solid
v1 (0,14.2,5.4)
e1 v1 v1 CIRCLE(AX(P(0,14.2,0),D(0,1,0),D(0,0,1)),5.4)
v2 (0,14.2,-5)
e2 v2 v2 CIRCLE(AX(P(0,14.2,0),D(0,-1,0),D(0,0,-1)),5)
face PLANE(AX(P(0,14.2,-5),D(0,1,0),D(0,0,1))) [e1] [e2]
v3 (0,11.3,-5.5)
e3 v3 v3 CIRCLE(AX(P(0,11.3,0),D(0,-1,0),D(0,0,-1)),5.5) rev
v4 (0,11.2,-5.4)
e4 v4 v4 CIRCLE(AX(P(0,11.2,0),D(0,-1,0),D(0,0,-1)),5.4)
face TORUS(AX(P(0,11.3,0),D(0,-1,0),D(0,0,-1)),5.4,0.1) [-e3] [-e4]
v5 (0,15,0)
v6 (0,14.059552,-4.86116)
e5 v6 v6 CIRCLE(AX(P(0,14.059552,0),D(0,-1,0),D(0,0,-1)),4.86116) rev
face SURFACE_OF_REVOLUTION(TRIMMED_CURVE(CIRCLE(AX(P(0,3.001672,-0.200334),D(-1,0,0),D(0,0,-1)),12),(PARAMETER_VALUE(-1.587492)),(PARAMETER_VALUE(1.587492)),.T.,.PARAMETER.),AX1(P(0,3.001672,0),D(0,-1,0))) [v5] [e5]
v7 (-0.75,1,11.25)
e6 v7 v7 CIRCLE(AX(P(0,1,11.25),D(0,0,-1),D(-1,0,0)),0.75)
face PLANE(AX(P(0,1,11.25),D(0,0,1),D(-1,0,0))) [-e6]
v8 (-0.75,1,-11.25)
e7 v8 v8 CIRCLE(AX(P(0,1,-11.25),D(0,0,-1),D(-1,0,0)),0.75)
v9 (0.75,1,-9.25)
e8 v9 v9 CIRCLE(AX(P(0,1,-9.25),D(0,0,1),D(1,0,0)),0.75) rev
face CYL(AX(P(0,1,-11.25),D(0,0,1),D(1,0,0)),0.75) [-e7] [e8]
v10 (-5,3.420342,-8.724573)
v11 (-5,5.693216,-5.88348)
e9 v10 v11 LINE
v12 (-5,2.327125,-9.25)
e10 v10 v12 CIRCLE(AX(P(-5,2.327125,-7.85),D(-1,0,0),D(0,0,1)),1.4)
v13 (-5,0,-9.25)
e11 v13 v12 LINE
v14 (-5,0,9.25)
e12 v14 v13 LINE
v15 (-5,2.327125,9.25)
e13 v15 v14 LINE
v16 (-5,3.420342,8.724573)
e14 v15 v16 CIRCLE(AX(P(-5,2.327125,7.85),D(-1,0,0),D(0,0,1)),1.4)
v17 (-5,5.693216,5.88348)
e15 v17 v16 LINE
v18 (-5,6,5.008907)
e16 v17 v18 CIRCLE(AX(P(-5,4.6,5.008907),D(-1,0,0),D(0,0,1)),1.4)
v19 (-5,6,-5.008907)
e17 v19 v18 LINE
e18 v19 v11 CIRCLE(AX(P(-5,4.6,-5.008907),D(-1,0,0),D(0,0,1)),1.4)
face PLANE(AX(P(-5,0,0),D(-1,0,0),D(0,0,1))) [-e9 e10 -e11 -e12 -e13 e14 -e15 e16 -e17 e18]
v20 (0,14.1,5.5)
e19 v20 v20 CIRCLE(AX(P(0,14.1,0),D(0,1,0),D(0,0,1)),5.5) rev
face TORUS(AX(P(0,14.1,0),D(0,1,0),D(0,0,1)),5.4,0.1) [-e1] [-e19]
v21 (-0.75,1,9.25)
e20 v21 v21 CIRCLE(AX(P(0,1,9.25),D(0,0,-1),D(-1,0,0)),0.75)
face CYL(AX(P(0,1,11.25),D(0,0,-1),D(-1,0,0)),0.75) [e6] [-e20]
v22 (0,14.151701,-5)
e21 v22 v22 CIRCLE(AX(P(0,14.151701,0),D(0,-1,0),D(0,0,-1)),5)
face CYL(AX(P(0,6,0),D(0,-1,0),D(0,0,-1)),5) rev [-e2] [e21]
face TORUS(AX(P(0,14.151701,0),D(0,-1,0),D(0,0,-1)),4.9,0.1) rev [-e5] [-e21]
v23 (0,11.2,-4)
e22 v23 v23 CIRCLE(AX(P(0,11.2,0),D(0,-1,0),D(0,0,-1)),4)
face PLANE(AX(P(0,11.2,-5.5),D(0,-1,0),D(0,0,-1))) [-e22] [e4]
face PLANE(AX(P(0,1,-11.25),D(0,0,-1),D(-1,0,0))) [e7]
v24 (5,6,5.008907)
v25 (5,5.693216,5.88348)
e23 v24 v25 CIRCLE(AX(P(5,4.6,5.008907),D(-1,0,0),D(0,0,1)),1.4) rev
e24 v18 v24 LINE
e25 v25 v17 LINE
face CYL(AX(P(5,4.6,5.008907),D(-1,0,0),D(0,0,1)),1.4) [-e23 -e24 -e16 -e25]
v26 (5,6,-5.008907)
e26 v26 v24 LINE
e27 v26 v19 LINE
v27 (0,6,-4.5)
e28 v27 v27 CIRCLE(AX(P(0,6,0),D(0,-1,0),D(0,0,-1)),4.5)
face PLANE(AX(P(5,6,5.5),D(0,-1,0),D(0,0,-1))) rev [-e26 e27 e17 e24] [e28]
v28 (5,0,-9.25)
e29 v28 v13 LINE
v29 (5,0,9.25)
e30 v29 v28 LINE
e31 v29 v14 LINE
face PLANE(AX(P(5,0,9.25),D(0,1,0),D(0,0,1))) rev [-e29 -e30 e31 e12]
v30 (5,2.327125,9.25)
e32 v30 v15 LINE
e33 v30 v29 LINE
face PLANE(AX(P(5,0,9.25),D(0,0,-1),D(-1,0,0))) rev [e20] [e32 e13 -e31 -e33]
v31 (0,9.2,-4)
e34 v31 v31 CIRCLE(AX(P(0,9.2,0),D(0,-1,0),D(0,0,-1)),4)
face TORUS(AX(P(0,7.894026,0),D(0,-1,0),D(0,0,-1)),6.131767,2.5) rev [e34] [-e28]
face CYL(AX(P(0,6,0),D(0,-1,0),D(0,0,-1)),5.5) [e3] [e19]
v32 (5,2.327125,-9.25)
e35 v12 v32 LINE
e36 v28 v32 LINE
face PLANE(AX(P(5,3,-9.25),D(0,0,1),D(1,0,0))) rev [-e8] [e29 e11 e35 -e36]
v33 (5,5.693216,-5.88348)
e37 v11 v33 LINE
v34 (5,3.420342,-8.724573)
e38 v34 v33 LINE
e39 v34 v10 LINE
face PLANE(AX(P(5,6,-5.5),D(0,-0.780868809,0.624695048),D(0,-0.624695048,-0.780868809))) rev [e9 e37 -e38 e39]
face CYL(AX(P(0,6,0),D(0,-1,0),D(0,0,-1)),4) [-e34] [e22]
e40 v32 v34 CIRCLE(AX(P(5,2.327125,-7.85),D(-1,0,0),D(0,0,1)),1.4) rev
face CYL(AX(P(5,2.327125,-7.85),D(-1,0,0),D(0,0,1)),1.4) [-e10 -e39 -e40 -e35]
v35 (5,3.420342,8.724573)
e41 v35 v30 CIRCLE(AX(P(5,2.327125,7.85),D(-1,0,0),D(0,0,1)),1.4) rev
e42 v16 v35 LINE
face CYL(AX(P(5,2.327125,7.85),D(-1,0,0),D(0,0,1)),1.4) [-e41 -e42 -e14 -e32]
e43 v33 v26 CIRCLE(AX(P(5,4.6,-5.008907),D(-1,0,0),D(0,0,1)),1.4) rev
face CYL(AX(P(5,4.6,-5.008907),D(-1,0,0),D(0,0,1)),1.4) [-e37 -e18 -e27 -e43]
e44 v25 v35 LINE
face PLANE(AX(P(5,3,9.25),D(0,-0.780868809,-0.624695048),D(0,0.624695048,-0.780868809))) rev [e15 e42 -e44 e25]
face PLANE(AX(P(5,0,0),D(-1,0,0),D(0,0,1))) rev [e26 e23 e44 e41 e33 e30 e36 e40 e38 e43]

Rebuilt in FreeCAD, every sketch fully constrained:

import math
import FreeCAD as App
import Part
import Sketcher
from FreeCAD import Vector
Q = App.Units.Quantity


def edges_at(feature, points):
    """Names of the edges that pass closest to the given points."""
    edges = feature.Shape.Edges
    near = lambda p: min(range(len(edges)), key=lambda i: edges[i].distToShape(Part.Vertex(*p))[0])
    return sorted({f"Edge{near(p) + 1}" for p in points})

doc = App.newDocument("Part")
body = doc.addObject("PartDesign::Body", "Body")

# Sketch on YZ plane
sketch1 = doc.addObject("Sketcher::SketchObject", "Sketch")
body.addObject(sketch1)
sketch1.AttachmentSupport = (doc.YZ_Plane, [""])
sketch1.MapMode = "FlatFace"
sketch1.addGeometry(Part.LineSegment(Vector(0, 9.2, 0), Vector(0, -9.2, 0)), False)
sketch1.addGeometry(Part.LineSegment(Vector(0, -9.2, 0), Vector(3, -9.2, 0)), False)
sketch1.addGeometry(Part.LineSegment(Vector(3, -9.2, 0), Vector(6, -5.5, 0)), False)
sketch1.addGeometry(Part.LineSegment(Vector(6, -5.5, 0), Vector(6, 5.5, 0)), False)
sketch1.addGeometry(Part.LineSegment(Vector(6, 5.5, 0), Vector(3, 9.2, 0)), False)
sketch1.addGeometry(Part.LineSegment(Vector(3, 9.2, 0), Vector(0, 9.2, 0)), False)
sketch1.addConstraint(Sketcher.Constraint("Coincident", 0, 2, 1, 1))
sketch1.addConstraint(Sketcher.Constraint("Coincident", 1, 2, 2, 1))
sketch1.addConstraint(Sketcher.Constraint("Coincident", 2, 2, 3, 1))
sketch1.addConstraint(Sketcher.Constraint("Coincident", 3, 2, 4, 1))
sketch1.addConstraint(Sketcher.Constraint("Coincident", 4, 2, 5, 1))
sketch1.addConstraint(Sketcher.Constraint("Coincident", 5, 2, 0, 1))
sketch1.addConstraint(Sketcher.Constraint("Vertical", 0))
sketch1.addConstraint(Sketcher.Constraint("Horizontal", 1))
sketch1.addConstraint(Sketcher.Constraint("Vertical", 3))
sketch1.addConstraint(Sketcher.Constraint("Horizontal", 5))
sketch1.addConstraint(Sketcher.Constraint("Symmetric", 0, 2, 5, 2, -1, 1))
sketch1.addConstraint(Sketcher.Constraint("Vertical", 1, 2, 4, 2))
sketch1.addConstraint(Sketcher.Constraint("Equal", 2, 4))
sketch1.addConstraint(Sketcher.Constraint("DistanceX", 1, 1, 1, 2, Q("3 mm")))
sketch1.addConstraint(Sketcher.Constraint("DistanceY", 3, 1, 3, 2, Q("11 mm")))
sketch1.addConstraint(Sketcher.Constraint("DistanceY", 0, 2, 0, 1, Q("18.5 mm")))
sketch1.addConstraint(Sketcher.Constraint("DistanceX", -1, 1, 2, 2, Q("6 mm")))
pad1 = doc.addObject("PartDesign::Pad", "Pad")
body.addObject(pad1)
pad1.Profile = sketch1
pad1.Length = 10
pad1.Midplane = True

# Sketch on YZ plane
sketch2 = doc.addObject("Sketcher::SketchObject", "Sketch001")
body.addObject(sketch2)
sketch2.AttachmentSupport = (doc.YZ_Plane, [""])
sketch2.MapMode = "FlatFace"
sketch2.addGeometry(Part.LineSegment(Vector(14, 0, 0), Vector(6, 0, 0)), False)
sketch2.addGeometry(Part.LineSegment(Vector(6, 0, 0), Vector(6, -4.5, 0)), False)
sketch2.addGeometry(Part.ArcOfCircle(Part.Circle(Vector(7.89, -6.13, 0), Vector(0, 0, 1), 2.5), math.radians(59), math.radians(139)), False)
sketch2.addGeometry(Part.LineSegment(Vector(9.2, -4, 0), Vector(11.2, -4, 0)), False)
sketch2.addGeometry(Part.LineSegment(Vector(11.2, -4, 0), Vector(11.2, -5.5, 0)), False)
sketch2.addGeometry(Part.LineSegment(Vector(11.2, -5.5, 0), Vector(14.2, -5.5, 0)), False)
sketch2.addGeometry(Part.LineSegment(Vector(14.2, -5.5, 0), Vector(14.2, -5, 0)), False)
sketch2.addGeometry(Part.LineSegment(Vector(14.2, -5, 0), Vector(14, -5, 0)), False)
sketch2.addGeometry(Part.LineSegment(Vector(14, -5, 0), Vector(14, 0, 0)), False)
sketch2.addConstraint(Sketcher.Constraint("Coincident", 0, 2, 1, 1))
sketch2.addConstraint(Sketcher.Constraint("Coincident", 1, 2, 2, 2))
sketch2.addConstraint(Sketcher.Constraint("Coincident", 2, 1, 3, 1))
sketch2.addConstraint(Sketcher.Constraint("Coincident", 3, 2, 4, 1))
sketch2.addConstraint(Sketcher.Constraint("Coincident", 4, 2, 5, 1))
sketch2.addConstraint(Sketcher.Constraint("Coincident", 5, 2, 6, 1))
sketch2.addConstraint(Sketcher.Constraint("Coincident", 6, 2, 7, 1))
sketch2.addConstraint(Sketcher.Constraint("Coincident", 7, 2, 8, 1))
sketch2.addConstraint(Sketcher.Constraint("Coincident", 8, 2, 0, 1))
sketch2.addConstraint(Sketcher.Constraint("Horizontal", 0))
sketch2.addConstraint(Sketcher.Constraint("Vertical", 1))
sketch2.addConstraint(Sketcher.Constraint("Horizontal", 3))
sketch2.addConstraint(Sketcher.Constraint("Vertical", 4))
sketch2.addConstraint(Sketcher.Constraint("Horizontal", 5))
sketch2.addConstraint(Sketcher.Constraint("Vertical", 6))
sketch2.addConstraint(Sketcher.Constraint("Horizontal", 7))
sketch2.addConstraint(Sketcher.Constraint("Vertical", 8))
sketch2.addConstraint(Sketcher.Constraint("PointOnObject", 0, 2, -1))
sketch2.addConstraint(Sketcher.Constraint("Radius", 2, Q("2.5 mm")))
sketch2.addConstraint(Sketcher.Constraint("DistanceX", 0, 2, 0, 1, Q("8 mm")))
sketch2.addConstraint(Sketcher.Constraint("DistanceX", 3, 1, 3, 2, Q("2 mm")))
sketch2.addConstraint(Sketcher.Constraint("DistanceX", 5, 1, 5, 2, Q("3 mm")))
sketch2.addConstraint(Sketcher.Constraint("DistanceY", 8, 1, 8, 2, Q("5 mm")))
sketch2.addConstraint(Sketcher.Constraint("DistanceX", 7, 2, 7, 1, Q("0.2 mm")))
sketch2.addConstraint(Sketcher.Constraint("DistanceY", 1, 2, 1, 1, Q("4.5 mm")))
sketch2.addConstraint(Sketcher.Constraint("DistanceY", 4, 2, 4, 1, Q("1.5 mm")))
sketch2.addConstraint(Sketcher.Constraint("DistanceY", 6, 1, 6, 2, Q("0.5 mm")))
sketch2.addConstraint(Sketcher.Constraint("DistanceX", -1, 1, 0, 2, Q("6 mm")))
revolution = doc.addObject("PartDesign::Revolution", "Revolution")
body.addObject(revolution)
revolution.Profile = sketch2
revolution.ReferenceAxis = (sketch2, ["H_Axis"])
revolution.Angle = 360

# Sketch on YZ plane
sketch3 = doc.addObject("Sketcher::SketchObject", "Sketch002")
body.addObject(sketch3)
sketch3.AttachmentSupport = (doc.YZ_Plane, [""])
sketch3.MapMode = "FlatFace"
sketch3.addGeometry(Part.ArcOfCircle(Part.Circle(Vector(3, 0.2, 0), Vector(0, 0, 1), 12), math.radians(-1), math.radians(24)), False)
sketch3.addGeometry(Part.LineSegment(Vector(14, 5, 0), Vector(14, 0, 0)), False)
sketch3.addGeometry(Part.LineSegment(Vector(14, 0, 0), Vector(15, 0, 0)), False)
sketch3.addConstraint(Sketcher.Constraint("Coincident", 0, 2, 1, 1))
sketch3.addConstraint(Sketcher.Constraint("Coincident", 1, 2, 2, 1))
sketch3.addConstraint(Sketcher.Constraint("Coincident", 2, 2, 0, 1))
sketch3.addConstraint(Sketcher.Constraint("Vertical", 1))
sketch3.addConstraint(Sketcher.Constraint("Horizontal", 2))
sketch3.addConstraint(Sketcher.Constraint("PointOnObject", 1, 2, -1))
sketch3.addConstraint(Sketcher.Constraint("Radius", 0, Q("12 mm")))
sketch3.addConstraint(Sketcher.Constraint("DistanceX", 2, 1, 2, 2, Q("1 mm")))
sketch3.addConstraint(Sketcher.Constraint("DistanceY", 1, 2, 1, 1, Q("5 mm")))
sketch3.addConstraint(Sketcher.Constraint("DistanceX", -1, 1, 0, 2, Q("14 mm")))
revolution2 = doc.addObject("PartDesign::Revolution", "Revolution001")
body.addObject(revolution2)
revolution2.Profile = sketch3
revolution2.ReferenceAxis = (sketch3, ["H_Axis"])
revolution2.Angle = 360
doc.recompute()

fillet = doc.addObject("PartDesign::Fillet", "Fillet")
body.addObject(fillet)
fillet.Base = (revolution2, edges_at(revolution2, [(0, 11.2, 5.5), (0, 14.2, 5.5)]))
fillet.Radius = 0.1
doc.recompute()

fillet2 = doc.addObject("PartDesign::Fillet", "Fillet001")
body.addObject(fillet2)
fillet2.Base = (fillet, edges_at(fillet, [(5, 14, 0)]))
fillet2.Radius = 0.1
doc.recompute()

fillet3 = doc.addObject("PartDesign::Fillet", "Fillet002")
body.addObject(fillet3)
fillet3.Base = (fillet2, edges_at(fillet2, [
    (0, 3, 9.25),
    (0, 6, 5.5),
    (0, 6, -5.5),
    (0, 3, -9.25),
]))
fillet3.Radius = 1.4

# Sketch on XY plane
sketch4 = doc.addObject("Sketcher::SketchObject", "Sketch003")
body.addObject(sketch4)
sketch4.AttachmentSupport = (doc.XY_Plane, [""])
sketch4.MapMode = "FlatFace"
sketch4.AttachmentOffset = App.Placement(Vector(0, 0, -9.25), App.Rotation())
sketch4.addGeometry(Part.Circle(Vector(0, 1, 0), Vector(0, 0, 1), 0.8), False)
sketch4.addConstraint(Sketcher.Constraint("PointOnObject", 0, 3, -2))
sketch4.addConstraint(Sketcher.Constraint("Diameter", 0, Q("1.5 mm")))
sketch4.addConstraint(Sketcher.Constraint("DistanceY", -1, 1, 0, 3, Q("1 mm")))
pad2 = doc.addObject("PartDesign::Pad", "Pad001")
body.addObject(pad2)
pad2.Profile = sketch4
pad2.Length = 2
pad2.Reversed = True
doc.recompute()

mirrored = doc.addObject("PartDesign::Mirrored", "Mirrored")
body.addObject(mirrored)
mirrored.Originals = [pad2]
mirrored.MirrorPlane = (doc.XY_Plane, [""])
body.Tip = mirrored

doc.recompute()
